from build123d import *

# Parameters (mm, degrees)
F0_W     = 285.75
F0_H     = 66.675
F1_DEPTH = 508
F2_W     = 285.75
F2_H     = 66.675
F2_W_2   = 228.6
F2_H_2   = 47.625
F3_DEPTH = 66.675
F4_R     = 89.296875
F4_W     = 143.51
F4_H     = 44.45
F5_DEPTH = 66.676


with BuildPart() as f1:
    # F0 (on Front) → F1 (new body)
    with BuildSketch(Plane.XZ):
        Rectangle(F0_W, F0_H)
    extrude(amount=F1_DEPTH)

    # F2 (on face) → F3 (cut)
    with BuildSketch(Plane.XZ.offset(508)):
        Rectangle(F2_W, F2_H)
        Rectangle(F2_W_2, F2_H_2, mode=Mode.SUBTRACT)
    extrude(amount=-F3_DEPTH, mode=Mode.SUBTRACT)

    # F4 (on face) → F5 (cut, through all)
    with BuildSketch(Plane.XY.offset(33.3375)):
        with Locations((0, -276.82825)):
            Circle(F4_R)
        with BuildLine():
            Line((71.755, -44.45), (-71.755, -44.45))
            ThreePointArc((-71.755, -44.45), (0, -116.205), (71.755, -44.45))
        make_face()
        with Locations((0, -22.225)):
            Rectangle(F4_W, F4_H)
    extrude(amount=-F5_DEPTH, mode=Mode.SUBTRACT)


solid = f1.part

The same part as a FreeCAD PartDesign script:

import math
import FreeCAD as App
import Part
import Sketcher
Q = App.Units.Quantity

doc = App.newDocument("Part")
body = doc.addObject("PartDesign::Body", "Body")

# Sketch on XZ plane
sketch1 = body.newObject("Sketcher::SketchObject", "Sketch")
sketch1.AttachmentSupport = (doc.getObject("XZ_Plane"), [""])
sketch1.MapMode = "FlatFace"
sketch1.addGeometry([
    Part.LineSegment(App.Vector(-143, 33, 0), App.Vector(-143, -33, 0)),
    Part.LineSegment(App.Vector(-143, -33, 0), App.Vector(143, -33, 0)),
    Part.LineSegment(App.Vector(143, -33, 0), App.Vector(143, 33, 0)),
    Part.LineSegment(App.Vector(143, 33, 0), App.Vector(-143, 33, 0)),
], False)
sketch1.addConstraint([
    Sketcher.Constraint("Coincident", 0, 2, 1, 1),
    Sketcher.Constraint("Coincident", 1, 2, 2, 1),
    Sketcher.Constraint("Coincident", 2, 2, 3, 1),
    Sketcher.Constraint("Coincident", 3, 2, 0, 1),
    Sketcher.Constraint("Vertical", 0),
    Sketcher.Constraint("Horizontal", 1),
    Sketcher.Constraint("Vertical", 2),
    Sketcher.Constraint("Horizontal", 3),
    Sketcher.Constraint("Symmetric", 0, 2, 2, 2, -1, 1),
    Sketcher.Constraint("DistanceX", 1, 1, 1, 2, Q("11.25 in")),
    Sketcher.Constraint("DistanceY", 0, 2, 0, 1, Q("2.625 in")),
])
pad1 = body.newObject("PartDesign::Pad", "Pad")
pad1.Profile = sketch1
pad1.Length = Q("20 in")

# Sketch on XZ plane
sketch2 = body.newObject("Sketcher::SketchObject", "Sketch001")
sketch2.AttachmentSupport = (doc.getObject("XZ_Plane"), [""])
sketch2.MapMode = "FlatFace"
sketch2.AttachmentOffset = App.Placement(App.Vector(0, 0, 20 * 25.4), App.Rotation())
sketch2.addGeometry([
    Part.LineSegment(App.Vector(-143, 33, 0), App.Vector(-143, -33, 0)),  # 0
    Part.LineSegment(App.Vector(-143, -33, 0), App.Vector(143, -33, 0)),  # 1
    Part.LineSegment(App.Vector(143, -33, 0), App.Vector(143, 33, 0)),  # 2
    Part.LineSegment(App.Vector(143, 33, 0), App.Vector(-143, 33, 0)),  # 3
    Part.LineSegment(App.Vector(114, -24, 0), App.Vector(-114, -24, 0)),  # 4
    Part.LineSegment(App.Vector(-114, -24, 0), App.Vector(-114, 24, 0)),  # 5
    Part.LineSegment(App.Vector(-114, 24, 0), App.Vector(114, 24, 0)),  # 6
    Part.LineSegment(App.Vector(114, 24, 0), App.Vector(114, -24, 0)),  # 7
], False)
sketch2.addConstraint([
    Sketcher.Constraint("Coincident", 0, 2, 1, 1),
    Sketcher.Constraint("Coincident", 1, 2, 2, 1),
    Sketcher.Constraint("Coincident", 2, 2, 3, 1),
    Sketcher.Constraint("Coincident", 3, 2, 0, 1),
    Sketcher.Constraint("Coincident", 4, 2, 5, 1),
    Sketcher.Constraint("Coincident", 5, 2, 6, 1),
    Sketcher.Constraint("Coincident", 6, 2, 7, 1),
    Sketcher.Constraint("Coincident", 7, 2, 4, 1),
    Sketcher.Constraint("Vertical", 0),
    Sketcher.Constraint("Horizontal", 1),
    Sketcher.Constraint("Vertical", 2),
    Sketcher.Constraint("Horizontal", 3),
    Sketcher.Constraint("Horizontal", 4),
    Sketcher.Constraint("Vertical", 5),
    Sketcher.Constraint("Horizontal", 6),
    Sketcher.Constraint("Vertical", 7),
    Sketcher.Constraint("Symmetric", 0, 2, 2, 2, -1, 1),
    Sketcher.Constraint("Symmetric", 4, 2, 6, 2, -1, 1),
    Sketcher.Constraint("DistanceX", 4, 2, 4, 1, Q("9 in")),
    Sketcher.Constraint("DistanceX", 1, 1, 1, 2, Q("11.25 in")),
    Sketcher.Constraint("DistanceY", 0, 2, 0, 1, Q("2.625 in")),
    Sketcher.Constraint("DistanceY", 5, 1, 5, 2, Q("1.875 in")),
])
pocket1 = body.newObject("PartDesign::Pocket", "Pocket")
pocket1.Profile = sketch2
pocket1.Length = Q("2.625 in")

# Sketch on XY plane
sketch3 = body.newObject("Sketcher::SketchObject", "Sketch002")
sketch3.AttachmentSupport = (doc.getObject("XY_Plane"), [""])
sketch3.MapMode = "FlatFace"
sketch3.AttachmentOffset = App.Placement(App.Vector(0, 0, 1.3125 * 25.4), App.Rotation())
sketch3.addGeometry([
    Part.Circle(App.Vector(0, -277, 0), App.Vector(0, 0, 1), 89),  # 0
    Part.ArcOfCircle(Part.Circle(App.Vector(0, -44, 0), App.Vector(0, 0, 1), 72), math.radians(180), math.radians(360)),  # 1
    Part.LineSegment(App.Vector(72, -44, 0), App.Vector(72, 0, 0)),  # 2
    Part.LineSegment(App.Vector(72, 0, 0), App.Vector(-72, 0, 0)),  # 3
    Part.LineSegment(App.Vector(-72, 0, 0), App.Vector(-72, -44, 0)),  # 4
], False)
sketch3.addConstraint([
    Sketcher.Constraint("Tangent", 1, 2, 2, 1),
    Sketcher.Constraint("Coincident", 2, 2, 3, 1),
    Sketcher.Constraint("Coincident", 3, 2, 4, 1),
    Sketcher.Constraint("Tangent", 4, 2, 1, 1),
    Sketcher.Constraint("Vertical", 2),
    Sketcher.Constraint("Horizontal", 3),
    Sketcher.Constraint("Vertical", 4),
    Sketcher.Constraint("Symmetric", 2, 2, 3, 2, -1, 1),
    Sketcher.Constraint("PointOnObject", 0, 3, -2),
    Sketcher.Constraint("Diameter", 0, Q("7.03125 in")),
    Sketcher.Constraint("Radius", 1, Q("2.825 in")),
    Sketcher.Constraint("DistanceY", 2, 1, 2, 2, Q("1.75 in")),
    Sketcher.Constraint("DistanceY", 0, 3, -1, 1, Q("276.82825 mm")),
])
pocket2 = body.newObject("PartDesign::Pocket", "Pocket001")
pocket2.Profile = sketch3
pocket2.Type = "ThroughAll"

doc.recompute()
